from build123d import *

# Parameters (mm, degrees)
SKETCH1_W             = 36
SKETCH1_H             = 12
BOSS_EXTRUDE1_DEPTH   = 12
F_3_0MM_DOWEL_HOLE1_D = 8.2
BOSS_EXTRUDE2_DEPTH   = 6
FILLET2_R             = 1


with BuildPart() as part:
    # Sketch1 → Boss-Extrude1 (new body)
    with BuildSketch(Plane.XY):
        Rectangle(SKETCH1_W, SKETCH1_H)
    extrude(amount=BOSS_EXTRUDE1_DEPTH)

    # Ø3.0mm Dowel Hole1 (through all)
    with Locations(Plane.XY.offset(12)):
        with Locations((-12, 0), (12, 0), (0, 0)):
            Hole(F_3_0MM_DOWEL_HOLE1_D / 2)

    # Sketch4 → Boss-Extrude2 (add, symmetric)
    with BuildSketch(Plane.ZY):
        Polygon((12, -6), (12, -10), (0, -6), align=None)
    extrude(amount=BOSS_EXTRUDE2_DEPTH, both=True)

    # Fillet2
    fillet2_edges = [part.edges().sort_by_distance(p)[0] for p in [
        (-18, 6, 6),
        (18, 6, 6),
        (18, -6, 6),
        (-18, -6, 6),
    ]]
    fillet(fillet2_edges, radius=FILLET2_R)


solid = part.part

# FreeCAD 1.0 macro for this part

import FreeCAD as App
import Part
import Sketcher

V = App.Vector
Q = App.Units.Quantity


def edges_at(feature, points):
    """Names of the edges that pass closest to the given points."""
    edges = feature.Shape.Edges
    near = lambda p: min(range(len(edges)), key=lambda i: edges[i].distToShape(Part.Vertex(*p))[0])
    return sorted({f"Edge{near(p) + 1}" for p in points})


def add_polygon(sketch, points):
    """Adds a closed chain of lines whose ends are joined by coincident constraints."""
    first, n = sketch.GeometryCount, len(points)
    for a, b in zip(points, points[1:] + points[:1]):
        sketch.addGeometry(Part.LineSegment(App.Vector(*a, 0), App.Vector(*b, 0)), False)
    for i in range(n):
        sketch.addConstraint(Sketcher.Constraint("Coincident", first + i, 2, first + (i + 1) % n, 1))

doc = App.newDocument("Part")
body = doc.addObject("PartDesign::Body", "Body")

# Sketch on XY plane
sketch1 = doc.addObject("Sketcher::SketchObject", "Sketch")
body.addObject(sketch1)
sketch1.AttachmentSupport = (doc.XY_Plane, [""])
sketch1.MapMode = "FlatFace"
add_polygon(sketch1, [(-18, 6), (-18, -6), (18, -6), (18, 6)])  # lines 0-3
sketch1.addConstraint([
    Sketcher.Constraint("Vertical", 0),
    Sketcher.Constraint("Horizontal", 1),
    Sketcher.Constraint("Vertical", 2),
    Sketcher.Constraint("Horizontal", 3),
    Sketcher.Constraint("Symmetric", 0, 2, 2, 2, -1, 1),
    Sketcher.Constraint("DistanceX", 1, 1, 1, 2, Q("36 mm")),
    Sketcher.Constraint("DistanceY", 0, 2, 0, 1, Q("12 mm")),
])
pad1 = doc.addObject("PartDesign::Pad", "Pad")
body.addObject(pad1)
pad1.Profile = sketch1
pad1.Length = 12

# Sketch on XY plane
sketch2 = doc.addObject("Sketcher::SketchObject", "Sketch001")
body.addObject(sketch2)
sketch2.AttachmentSupport = (doc.XY_Plane, [""])
sketch2.MapMode = "FlatFace"
sketch2.AttachmentOffset = App.Placement(V(0, 0, 12), App.Rotation())
sketch2.addGeometry([
    Part.Circle(V(-12, 0, 0), V(0, 0, 1), 4.1),
    Part.Circle(V(12, 0, 0), V(0, 0, 1), 4.1),
    Part.Circle(V(0, 0, 0), V(0, 0, 1), 4.1),
], False)
sketch2.addConstraint([
    Sketcher.Constraint("Coincident", 2, 3, -1, 1),
    Sketcher.Constraint("Equal", 0, 1),
    Sketcher.Constraint("Equal", 1, 2),
    Sketcher.Constraint("Symmetric", 0, 3, 1, 3, -1, 1),
    Sketcher.Constraint("PointOnObject", 0, 3, -1),
    Sketcher.Constraint("Diameter", 0, Q("8.2 mm")),
    Sketcher.Constraint("DistanceX", 0, 3, -1, 1, Q("12 mm")),
])
doc.recompute()
hole = doc.addObject("PartDesign::Hole", "Hole")
body.addObject(hole)
hole.Profile = sketch2
hole.ThreadType = "None"
hole.Diameter = 8.2
hole.DepthType = "ThroughAll"

# Sketch on YZ plane
sketch3 = doc.addObject("Sketcher::SketchObject", "Sketch002")
body.addObject(sketch3)
sketch3.AttachmentSupport = (doc.YZ_Plane, [""])
sketch3.MapMode = "FlatFace"
add_polygon(sketch3, [(-10, 12), (-6, 12), (-6, 0)])  # lines 0-2
sketch3.addConstraint([
    Sketcher.Constraint("Horizontal", 0),
    Sketcher.Constraint("Vertical", 1),
    Sketcher.Constraint("PointOnObject", 1, 2, -1),
    Sketcher.Constraint("DistanceX", 0, 1, 0, 2, Q("4 mm")),
    Sketcher.Constraint("DistanceY", 1, 2, 1, 1, Q("12 mm")),
    Sketcher.Constraint("DistanceX", 0, 2, -1, 1, Q("6 mm")),
])
pad2 = doc.addObject("PartDesign::Pad", "Pad001")
body.addObject(pad2)
pad2.Profile = sketch3
pad2.Length = 12
pad2.Midplane = True
doc.recompute()

fillet = doc.addObject("PartDesign::Fillet", "Fillet")
body.addObject(fillet)
fillet.Base = (pad2, edges_at(pad2, [
    (-18, 6, 6),
    (18, 6, 6),
    (18, -6, 6),
    (-18, -6, 6),
]))
fillet.Radius = 1

doc.recompute()
